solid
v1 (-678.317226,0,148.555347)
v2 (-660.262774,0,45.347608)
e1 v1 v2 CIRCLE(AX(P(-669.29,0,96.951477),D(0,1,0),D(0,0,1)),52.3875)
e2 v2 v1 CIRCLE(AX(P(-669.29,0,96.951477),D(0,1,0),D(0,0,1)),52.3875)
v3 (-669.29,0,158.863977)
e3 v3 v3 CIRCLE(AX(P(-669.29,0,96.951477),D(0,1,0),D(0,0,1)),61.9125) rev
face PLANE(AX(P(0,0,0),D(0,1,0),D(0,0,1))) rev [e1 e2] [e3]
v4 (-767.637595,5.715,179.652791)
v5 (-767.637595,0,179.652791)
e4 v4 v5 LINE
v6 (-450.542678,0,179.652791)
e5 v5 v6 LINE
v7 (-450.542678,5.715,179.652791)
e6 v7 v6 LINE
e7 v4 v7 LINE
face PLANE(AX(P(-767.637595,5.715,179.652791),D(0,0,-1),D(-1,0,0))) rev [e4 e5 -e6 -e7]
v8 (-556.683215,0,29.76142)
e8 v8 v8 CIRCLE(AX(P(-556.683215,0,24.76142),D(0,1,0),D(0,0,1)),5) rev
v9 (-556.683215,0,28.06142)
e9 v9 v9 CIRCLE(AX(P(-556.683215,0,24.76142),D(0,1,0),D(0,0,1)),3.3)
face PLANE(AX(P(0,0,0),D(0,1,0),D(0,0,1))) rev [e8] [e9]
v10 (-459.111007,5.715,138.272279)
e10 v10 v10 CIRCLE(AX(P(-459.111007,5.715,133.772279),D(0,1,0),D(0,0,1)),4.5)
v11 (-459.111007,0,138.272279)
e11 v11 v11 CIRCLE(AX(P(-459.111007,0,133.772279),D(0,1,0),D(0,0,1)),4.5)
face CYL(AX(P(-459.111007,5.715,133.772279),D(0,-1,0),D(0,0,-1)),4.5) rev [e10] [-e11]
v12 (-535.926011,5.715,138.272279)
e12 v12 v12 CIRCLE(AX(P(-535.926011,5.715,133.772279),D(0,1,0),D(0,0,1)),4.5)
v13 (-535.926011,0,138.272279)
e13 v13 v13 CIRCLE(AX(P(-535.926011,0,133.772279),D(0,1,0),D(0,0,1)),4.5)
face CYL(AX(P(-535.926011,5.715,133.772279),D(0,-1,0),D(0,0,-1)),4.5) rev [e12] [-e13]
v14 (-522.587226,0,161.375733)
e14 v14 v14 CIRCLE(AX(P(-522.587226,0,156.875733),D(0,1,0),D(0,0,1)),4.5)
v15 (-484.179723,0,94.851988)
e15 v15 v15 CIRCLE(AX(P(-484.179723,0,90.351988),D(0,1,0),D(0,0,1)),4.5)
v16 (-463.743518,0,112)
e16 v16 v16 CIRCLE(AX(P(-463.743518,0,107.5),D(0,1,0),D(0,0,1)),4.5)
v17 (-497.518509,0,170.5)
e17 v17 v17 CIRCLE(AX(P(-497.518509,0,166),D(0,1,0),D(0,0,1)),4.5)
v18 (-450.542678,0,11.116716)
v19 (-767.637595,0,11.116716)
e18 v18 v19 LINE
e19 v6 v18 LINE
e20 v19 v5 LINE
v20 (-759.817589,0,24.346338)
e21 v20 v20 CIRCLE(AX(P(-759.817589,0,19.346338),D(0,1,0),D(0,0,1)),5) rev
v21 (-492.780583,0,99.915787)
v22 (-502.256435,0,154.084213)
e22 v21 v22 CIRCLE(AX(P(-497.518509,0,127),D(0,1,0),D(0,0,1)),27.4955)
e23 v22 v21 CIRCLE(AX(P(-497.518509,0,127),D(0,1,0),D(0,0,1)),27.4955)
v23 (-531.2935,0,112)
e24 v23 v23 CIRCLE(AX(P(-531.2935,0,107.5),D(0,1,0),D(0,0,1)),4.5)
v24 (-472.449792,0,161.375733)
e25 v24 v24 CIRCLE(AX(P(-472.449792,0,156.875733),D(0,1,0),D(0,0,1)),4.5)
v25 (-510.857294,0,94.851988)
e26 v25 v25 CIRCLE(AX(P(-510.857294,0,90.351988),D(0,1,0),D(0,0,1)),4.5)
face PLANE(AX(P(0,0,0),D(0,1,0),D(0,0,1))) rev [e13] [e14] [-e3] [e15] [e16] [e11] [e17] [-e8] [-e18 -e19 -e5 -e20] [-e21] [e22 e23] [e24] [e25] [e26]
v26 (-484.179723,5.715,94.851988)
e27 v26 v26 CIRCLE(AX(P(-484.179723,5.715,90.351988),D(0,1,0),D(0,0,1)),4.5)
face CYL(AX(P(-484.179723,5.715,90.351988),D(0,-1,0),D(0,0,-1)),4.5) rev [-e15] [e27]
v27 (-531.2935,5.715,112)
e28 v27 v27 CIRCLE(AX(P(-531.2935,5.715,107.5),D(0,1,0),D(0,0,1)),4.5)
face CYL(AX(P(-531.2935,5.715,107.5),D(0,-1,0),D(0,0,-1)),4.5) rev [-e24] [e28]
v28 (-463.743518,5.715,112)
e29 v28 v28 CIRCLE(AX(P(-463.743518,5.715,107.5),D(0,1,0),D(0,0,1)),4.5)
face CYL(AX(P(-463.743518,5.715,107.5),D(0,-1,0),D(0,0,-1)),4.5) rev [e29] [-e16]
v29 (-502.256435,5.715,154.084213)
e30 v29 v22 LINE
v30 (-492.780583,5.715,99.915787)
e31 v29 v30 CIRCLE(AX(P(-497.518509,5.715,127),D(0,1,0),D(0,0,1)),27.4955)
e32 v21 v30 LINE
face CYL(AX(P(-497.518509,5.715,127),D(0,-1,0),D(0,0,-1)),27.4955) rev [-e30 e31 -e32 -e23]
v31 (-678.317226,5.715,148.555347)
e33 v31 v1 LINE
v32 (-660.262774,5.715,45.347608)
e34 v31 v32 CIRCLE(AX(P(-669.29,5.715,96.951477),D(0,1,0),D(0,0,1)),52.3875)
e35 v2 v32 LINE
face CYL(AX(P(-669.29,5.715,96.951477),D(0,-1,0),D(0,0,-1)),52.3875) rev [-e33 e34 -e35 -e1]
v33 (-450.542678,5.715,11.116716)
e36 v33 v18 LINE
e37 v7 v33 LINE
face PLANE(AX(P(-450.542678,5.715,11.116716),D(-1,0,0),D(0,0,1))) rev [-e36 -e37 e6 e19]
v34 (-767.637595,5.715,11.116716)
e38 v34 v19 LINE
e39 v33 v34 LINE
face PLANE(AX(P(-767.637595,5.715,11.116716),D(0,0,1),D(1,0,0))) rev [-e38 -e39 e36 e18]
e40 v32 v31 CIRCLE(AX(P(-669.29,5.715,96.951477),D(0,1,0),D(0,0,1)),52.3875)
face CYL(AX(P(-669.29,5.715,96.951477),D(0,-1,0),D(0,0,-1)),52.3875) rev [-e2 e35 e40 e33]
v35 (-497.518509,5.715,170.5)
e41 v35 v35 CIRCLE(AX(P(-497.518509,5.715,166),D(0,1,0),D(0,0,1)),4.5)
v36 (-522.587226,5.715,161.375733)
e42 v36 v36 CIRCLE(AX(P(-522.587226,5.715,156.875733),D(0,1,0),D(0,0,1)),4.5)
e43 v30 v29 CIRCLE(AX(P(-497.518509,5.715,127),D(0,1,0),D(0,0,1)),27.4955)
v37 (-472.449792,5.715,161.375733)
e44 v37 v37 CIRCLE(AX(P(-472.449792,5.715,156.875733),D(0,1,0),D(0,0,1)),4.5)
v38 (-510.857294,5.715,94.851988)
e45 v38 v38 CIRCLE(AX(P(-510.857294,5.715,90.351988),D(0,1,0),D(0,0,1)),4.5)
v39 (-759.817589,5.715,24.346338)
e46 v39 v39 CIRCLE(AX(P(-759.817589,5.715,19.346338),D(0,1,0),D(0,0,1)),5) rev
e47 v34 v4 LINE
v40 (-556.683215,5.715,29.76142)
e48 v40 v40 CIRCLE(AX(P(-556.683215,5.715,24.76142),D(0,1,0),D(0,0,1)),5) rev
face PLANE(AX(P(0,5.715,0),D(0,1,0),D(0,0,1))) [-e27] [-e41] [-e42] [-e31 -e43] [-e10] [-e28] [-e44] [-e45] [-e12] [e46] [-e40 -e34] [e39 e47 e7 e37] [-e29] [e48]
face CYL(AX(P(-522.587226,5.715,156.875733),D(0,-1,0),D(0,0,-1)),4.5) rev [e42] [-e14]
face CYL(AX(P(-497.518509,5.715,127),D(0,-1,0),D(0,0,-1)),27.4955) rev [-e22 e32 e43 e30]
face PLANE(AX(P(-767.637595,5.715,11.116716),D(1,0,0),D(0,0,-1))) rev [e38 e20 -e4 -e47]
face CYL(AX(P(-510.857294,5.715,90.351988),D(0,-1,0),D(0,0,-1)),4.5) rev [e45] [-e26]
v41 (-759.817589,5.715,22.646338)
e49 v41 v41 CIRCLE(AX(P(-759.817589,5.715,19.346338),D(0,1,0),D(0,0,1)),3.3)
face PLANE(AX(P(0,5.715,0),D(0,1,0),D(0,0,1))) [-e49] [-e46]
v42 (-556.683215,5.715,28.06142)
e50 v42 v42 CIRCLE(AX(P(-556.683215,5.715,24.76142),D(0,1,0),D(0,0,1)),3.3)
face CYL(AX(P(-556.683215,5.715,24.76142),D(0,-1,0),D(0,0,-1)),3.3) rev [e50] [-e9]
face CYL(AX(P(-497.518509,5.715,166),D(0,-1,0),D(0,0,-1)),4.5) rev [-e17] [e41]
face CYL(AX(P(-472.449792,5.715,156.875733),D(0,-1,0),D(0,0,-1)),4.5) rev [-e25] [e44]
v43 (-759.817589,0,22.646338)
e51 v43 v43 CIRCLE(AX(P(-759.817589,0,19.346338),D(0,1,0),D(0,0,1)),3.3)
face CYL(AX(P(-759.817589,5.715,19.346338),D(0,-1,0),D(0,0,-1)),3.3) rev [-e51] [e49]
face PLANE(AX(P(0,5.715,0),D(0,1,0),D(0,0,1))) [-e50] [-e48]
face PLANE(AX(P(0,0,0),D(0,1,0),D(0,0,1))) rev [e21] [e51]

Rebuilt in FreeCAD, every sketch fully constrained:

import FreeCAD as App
import Part
import Sketcher

V = App.Vector
Q = App.Units.Quantity

doc = App.newDocument("Part")
body = doc.addObject("PartDesign::Body", "Body")

# Sketch on XZ plane
sketch1 = body.newObject("Sketcher::SketchObject", "Sketch")
sketch1.AttachmentSupport = (doc.getObject("XZ_Plane"), [""])
sketch1.MapMode = "FlatFace"
sketch1.addGeometry(Part.LineSegment(V(-767.637595, 11.116716, 0), V(-767.637595, 179.652791, 0)), False)
sketch1.addGeometry(Part.LineSegment(V(-767.637595, 179.652791, 0), V(-450.542678, 179.652791, 0)), False)
sketch1.addGeometry(Part.LineSegment(V(-450.542678, 179.652791, 0), V(-450.542678, 11.116716, 0)), False)
sketch1.addGeometry(Part.LineSegment(V(-450.542678, 11.116716, 0), V(-767.637595, 11.116716, 0)), False)
sketch1.addGeometry(Part.Circle(V(-669.29, 96.951477, 0), V(0, 0, 1), 52.3875), False)
sketch1.addGeometry(Part.Circle(V(-535.926011, 133.772279, 0), V(0, 0, 1), 4.5), False)
sketch1.addGeometry(Part.Circle(V(-497.518509, 166, 0), V(0, 0, 1), 4.5), False)
sketch1.addGeometry(Part.Circle(V(-522.587226, 156.875733, 0), V(0, 0, 1), 4.5), False)
sketch1.addGeometry(Part.Circle(V(-472.449792, 156.875733, 0), V(0, 0, 1), 4.5), False)
sketch1.addGeometry(Part.Circle(V(-459.111007, 133.772279, 0), V(0, 0, 1), 4.5), False)
sketch1.addGeometry(Part.Circle(V(-497.518509, 127, 0), V(0, 0, 1), 27.4955), False)
sketch1.addGeometry(Part.Circle(V(-531.2935, 107.5, 0), V(0, 0, 1), 4.5), False)
sketch1.addGeometry(Part.Circle(V(-463.743518, 107.5, 0), V(0, 0, 1), 4.5), False)
sketch1.addGeometry(Part.Circle(V(-759.817589, 19.346338, 0), V(0, 0, 1), 3.3), False)
sketch1.addGeometry(Part.Circle(V(-510.857294, 90.351988, 0), V(0, 0, 1), 4.5), False)
sketch1.addGeometry(Part.Circle(V(-484.179723, 90.351988, 0), V(0, 0, 1), 4.5), False)
sketch1.addGeometry(Part.Circle(V(-556.683215, 24.76142, 0), V(0, 0, 1), 3.3), False)
sketch1.addConstraint(Sketcher.Constraint("Coincident", 0, 2, 1, 1))
sketch1.addConstraint(Sketcher.Constraint("Coincident", 1, 2, 2, 1))
sketch1.addConstraint(Sketcher.Constraint("Coincident", 2, 2, 3, 1))
sketch1.addConstraint(Sketcher.Constraint("Coincident", 3, 2, 0, 1))
sketch1.addConstraint(Sketcher.Constraint("Vertical", 0))
sketch1.addConstraint(Sketcher.Constraint("Horizontal", 1))
sketch1.addConstraint(Sketcher.Constraint("Vertical", 2))
sketch1.addConstraint(Sketcher.Constraint("Horizontal", 3))
sketch1.addConstraint(Sketcher.Constraint("Equal", 5, 6))
sketch1.addConstraint(Sketcher.Constraint("Equal", 6, 7))
sketch1.addConstraint(Sketcher.Constraint("Equal", 7, 8))
sketch1.addConstraint(Sketcher.Constraint("Equal", 8, 9))
sketch1.addConstraint(Sketcher.Constraint("Equal", 9, 11))
sketch1.addConstraint(Sketcher.Constraint("Equal", 11, 12))
sketch1.addConstraint(Sketcher.Constraint("Equal", 12, 14))
sketch1.addConstraint(Sketcher.Constraint("Equal", 14, 15))
sketch1.addConstraint(Sketcher.Constraint("Equal", 13, 16))
sketch1.addConstraint(Sketcher.Constraint("Horizontal", 7, 3, 8, 3))
sketch1.addConstraint(Sketcher.Constraint("Horizontal", 5, 3, 9, 3))
sketch1.addConstraint(Sketcher.Constraint("Horizontal", 11, 3, 12, 3))
sketch1.addConstraint(Sketcher.Constraint("Horizontal", 14, 3, 15, 3))
sketch1.addConstraint(Sketcher.Constraint("Vertical", 6, 3, 10, 3))
sketch1.addConstraint(Sketcher.Constraint("Diameter", 4, Q("4.125 in")))
sketch1.addConstraint(Sketcher.Constraint("Diameter", 10, Q("2.165 in")))
sketch1.addConstraint(Sketcher.Constraint("DistanceY", -1, 1, 10, 3, Q("5 in")))
sketch1.addConstraint(Sketcher.Constraint("Diameter", 5, 9.0))
sketch1.addConstraint(Sketcher.Constraint("Diameter", 13, 6.6))
sketch1.addConstraint(Sketcher.Constraint("DistanceX", 4, 3, -1, 1, Q("26.35 in")))
sketch1.addConstraint(Sketcher.Constraint("DistanceY", -1, 1, 6, 3, 166.0))
sketch1.addConstraint(Sketcher.Constraint("DistanceX", 11, 3, -1, 1, 531.2935))
sketch1.addConstraint(Sketcher.Constraint("DistanceY", -1, 1, 11, 3, 107.5))
sketch1.addConstraint(Sketcher.Constraint("DistanceY", 4, 3, 5, 3, 36.820802))
sketch1.addConstraint(Sketcher.Constraint("DistanceX", 1, 1, 1, 2, 317.094917))
sketch1.addConstraint(Sketcher.Constraint("DistanceY", 0, 1, 0, 2, 168.536076))
sketch1.addConstraint(Sketcher.Constraint("DistanceX", 5, 3, -1, 1, 535.926011))
sketch1.addConstraint(Sketcher.Constraint("DistanceY", -1, 1, 5, 3, 133.772279))
sketch1.addConstraint(Sketcher.Constraint("DistanceX", 6, 3, -1, 1, 497.518509))
sketch1.addConstraint(Sketcher.Constraint("DistanceX", 12, 3, -1, 1, 463.743518))
sketch1.addConstraint(Sketcher.Constraint("DistanceX", 13, 3, -1, 1, 759.817589))
sketch1.addConstraint(Sketcher.Constraint("DistanceY", -1, 1, 13, 3, 19.346338))
sketch1.addConstraint(Sketcher.Constraint("DistanceY", -1, 1, 16, 3, 24.76142))
sketch1.addConstraint(Sketcher.Constraint("DistanceY", -1, 1, 0, 2, 179.652791))
sketch1.addConstraint(Sketcher.Constraint("DistanceX", 1, 2, -1, 1, 450.542678))
sketch1.addConstraint(Sketcher.Constraint("DistanceX", 5, 3, 8, 3, 63.476219))
sketch1.addConstraint(Sketcher.Constraint("DistanceX", 7, 3, 9, 3, 63.476219))
sketch1.addConstraint(Sketcher.Constraint("DistanceX", 12, 3, 9, 3, 4.632512))
sketch1.addConstraint(Sketcher.Constraint("DistanceY", 14, 3, 5, 3, 43.420291))
sketch1.addConstraint(Sketcher.Constraint("DistanceX", 14, 3, 15, 3, 26.677571))
sketch1.addConstraint(Sketcher.Constraint("DistanceX", 16, 3, 14, 3, 45.82592))
sketch1.addConstraint(Sketcher.Constraint("DistanceY", 7, 3, 0, 2, 22.777058))
sketch1.addConstraint(Sketcher.Constraint("DistanceX", 3, 2, 16, 3, 210.95438))
pad1 = body.newObject("PartDesign::Pad", "Pad")
pad1.Profile = sketch1
pad1.Length = Q("0.225 in")
pad1.Reversed = True

doc.recompute()
